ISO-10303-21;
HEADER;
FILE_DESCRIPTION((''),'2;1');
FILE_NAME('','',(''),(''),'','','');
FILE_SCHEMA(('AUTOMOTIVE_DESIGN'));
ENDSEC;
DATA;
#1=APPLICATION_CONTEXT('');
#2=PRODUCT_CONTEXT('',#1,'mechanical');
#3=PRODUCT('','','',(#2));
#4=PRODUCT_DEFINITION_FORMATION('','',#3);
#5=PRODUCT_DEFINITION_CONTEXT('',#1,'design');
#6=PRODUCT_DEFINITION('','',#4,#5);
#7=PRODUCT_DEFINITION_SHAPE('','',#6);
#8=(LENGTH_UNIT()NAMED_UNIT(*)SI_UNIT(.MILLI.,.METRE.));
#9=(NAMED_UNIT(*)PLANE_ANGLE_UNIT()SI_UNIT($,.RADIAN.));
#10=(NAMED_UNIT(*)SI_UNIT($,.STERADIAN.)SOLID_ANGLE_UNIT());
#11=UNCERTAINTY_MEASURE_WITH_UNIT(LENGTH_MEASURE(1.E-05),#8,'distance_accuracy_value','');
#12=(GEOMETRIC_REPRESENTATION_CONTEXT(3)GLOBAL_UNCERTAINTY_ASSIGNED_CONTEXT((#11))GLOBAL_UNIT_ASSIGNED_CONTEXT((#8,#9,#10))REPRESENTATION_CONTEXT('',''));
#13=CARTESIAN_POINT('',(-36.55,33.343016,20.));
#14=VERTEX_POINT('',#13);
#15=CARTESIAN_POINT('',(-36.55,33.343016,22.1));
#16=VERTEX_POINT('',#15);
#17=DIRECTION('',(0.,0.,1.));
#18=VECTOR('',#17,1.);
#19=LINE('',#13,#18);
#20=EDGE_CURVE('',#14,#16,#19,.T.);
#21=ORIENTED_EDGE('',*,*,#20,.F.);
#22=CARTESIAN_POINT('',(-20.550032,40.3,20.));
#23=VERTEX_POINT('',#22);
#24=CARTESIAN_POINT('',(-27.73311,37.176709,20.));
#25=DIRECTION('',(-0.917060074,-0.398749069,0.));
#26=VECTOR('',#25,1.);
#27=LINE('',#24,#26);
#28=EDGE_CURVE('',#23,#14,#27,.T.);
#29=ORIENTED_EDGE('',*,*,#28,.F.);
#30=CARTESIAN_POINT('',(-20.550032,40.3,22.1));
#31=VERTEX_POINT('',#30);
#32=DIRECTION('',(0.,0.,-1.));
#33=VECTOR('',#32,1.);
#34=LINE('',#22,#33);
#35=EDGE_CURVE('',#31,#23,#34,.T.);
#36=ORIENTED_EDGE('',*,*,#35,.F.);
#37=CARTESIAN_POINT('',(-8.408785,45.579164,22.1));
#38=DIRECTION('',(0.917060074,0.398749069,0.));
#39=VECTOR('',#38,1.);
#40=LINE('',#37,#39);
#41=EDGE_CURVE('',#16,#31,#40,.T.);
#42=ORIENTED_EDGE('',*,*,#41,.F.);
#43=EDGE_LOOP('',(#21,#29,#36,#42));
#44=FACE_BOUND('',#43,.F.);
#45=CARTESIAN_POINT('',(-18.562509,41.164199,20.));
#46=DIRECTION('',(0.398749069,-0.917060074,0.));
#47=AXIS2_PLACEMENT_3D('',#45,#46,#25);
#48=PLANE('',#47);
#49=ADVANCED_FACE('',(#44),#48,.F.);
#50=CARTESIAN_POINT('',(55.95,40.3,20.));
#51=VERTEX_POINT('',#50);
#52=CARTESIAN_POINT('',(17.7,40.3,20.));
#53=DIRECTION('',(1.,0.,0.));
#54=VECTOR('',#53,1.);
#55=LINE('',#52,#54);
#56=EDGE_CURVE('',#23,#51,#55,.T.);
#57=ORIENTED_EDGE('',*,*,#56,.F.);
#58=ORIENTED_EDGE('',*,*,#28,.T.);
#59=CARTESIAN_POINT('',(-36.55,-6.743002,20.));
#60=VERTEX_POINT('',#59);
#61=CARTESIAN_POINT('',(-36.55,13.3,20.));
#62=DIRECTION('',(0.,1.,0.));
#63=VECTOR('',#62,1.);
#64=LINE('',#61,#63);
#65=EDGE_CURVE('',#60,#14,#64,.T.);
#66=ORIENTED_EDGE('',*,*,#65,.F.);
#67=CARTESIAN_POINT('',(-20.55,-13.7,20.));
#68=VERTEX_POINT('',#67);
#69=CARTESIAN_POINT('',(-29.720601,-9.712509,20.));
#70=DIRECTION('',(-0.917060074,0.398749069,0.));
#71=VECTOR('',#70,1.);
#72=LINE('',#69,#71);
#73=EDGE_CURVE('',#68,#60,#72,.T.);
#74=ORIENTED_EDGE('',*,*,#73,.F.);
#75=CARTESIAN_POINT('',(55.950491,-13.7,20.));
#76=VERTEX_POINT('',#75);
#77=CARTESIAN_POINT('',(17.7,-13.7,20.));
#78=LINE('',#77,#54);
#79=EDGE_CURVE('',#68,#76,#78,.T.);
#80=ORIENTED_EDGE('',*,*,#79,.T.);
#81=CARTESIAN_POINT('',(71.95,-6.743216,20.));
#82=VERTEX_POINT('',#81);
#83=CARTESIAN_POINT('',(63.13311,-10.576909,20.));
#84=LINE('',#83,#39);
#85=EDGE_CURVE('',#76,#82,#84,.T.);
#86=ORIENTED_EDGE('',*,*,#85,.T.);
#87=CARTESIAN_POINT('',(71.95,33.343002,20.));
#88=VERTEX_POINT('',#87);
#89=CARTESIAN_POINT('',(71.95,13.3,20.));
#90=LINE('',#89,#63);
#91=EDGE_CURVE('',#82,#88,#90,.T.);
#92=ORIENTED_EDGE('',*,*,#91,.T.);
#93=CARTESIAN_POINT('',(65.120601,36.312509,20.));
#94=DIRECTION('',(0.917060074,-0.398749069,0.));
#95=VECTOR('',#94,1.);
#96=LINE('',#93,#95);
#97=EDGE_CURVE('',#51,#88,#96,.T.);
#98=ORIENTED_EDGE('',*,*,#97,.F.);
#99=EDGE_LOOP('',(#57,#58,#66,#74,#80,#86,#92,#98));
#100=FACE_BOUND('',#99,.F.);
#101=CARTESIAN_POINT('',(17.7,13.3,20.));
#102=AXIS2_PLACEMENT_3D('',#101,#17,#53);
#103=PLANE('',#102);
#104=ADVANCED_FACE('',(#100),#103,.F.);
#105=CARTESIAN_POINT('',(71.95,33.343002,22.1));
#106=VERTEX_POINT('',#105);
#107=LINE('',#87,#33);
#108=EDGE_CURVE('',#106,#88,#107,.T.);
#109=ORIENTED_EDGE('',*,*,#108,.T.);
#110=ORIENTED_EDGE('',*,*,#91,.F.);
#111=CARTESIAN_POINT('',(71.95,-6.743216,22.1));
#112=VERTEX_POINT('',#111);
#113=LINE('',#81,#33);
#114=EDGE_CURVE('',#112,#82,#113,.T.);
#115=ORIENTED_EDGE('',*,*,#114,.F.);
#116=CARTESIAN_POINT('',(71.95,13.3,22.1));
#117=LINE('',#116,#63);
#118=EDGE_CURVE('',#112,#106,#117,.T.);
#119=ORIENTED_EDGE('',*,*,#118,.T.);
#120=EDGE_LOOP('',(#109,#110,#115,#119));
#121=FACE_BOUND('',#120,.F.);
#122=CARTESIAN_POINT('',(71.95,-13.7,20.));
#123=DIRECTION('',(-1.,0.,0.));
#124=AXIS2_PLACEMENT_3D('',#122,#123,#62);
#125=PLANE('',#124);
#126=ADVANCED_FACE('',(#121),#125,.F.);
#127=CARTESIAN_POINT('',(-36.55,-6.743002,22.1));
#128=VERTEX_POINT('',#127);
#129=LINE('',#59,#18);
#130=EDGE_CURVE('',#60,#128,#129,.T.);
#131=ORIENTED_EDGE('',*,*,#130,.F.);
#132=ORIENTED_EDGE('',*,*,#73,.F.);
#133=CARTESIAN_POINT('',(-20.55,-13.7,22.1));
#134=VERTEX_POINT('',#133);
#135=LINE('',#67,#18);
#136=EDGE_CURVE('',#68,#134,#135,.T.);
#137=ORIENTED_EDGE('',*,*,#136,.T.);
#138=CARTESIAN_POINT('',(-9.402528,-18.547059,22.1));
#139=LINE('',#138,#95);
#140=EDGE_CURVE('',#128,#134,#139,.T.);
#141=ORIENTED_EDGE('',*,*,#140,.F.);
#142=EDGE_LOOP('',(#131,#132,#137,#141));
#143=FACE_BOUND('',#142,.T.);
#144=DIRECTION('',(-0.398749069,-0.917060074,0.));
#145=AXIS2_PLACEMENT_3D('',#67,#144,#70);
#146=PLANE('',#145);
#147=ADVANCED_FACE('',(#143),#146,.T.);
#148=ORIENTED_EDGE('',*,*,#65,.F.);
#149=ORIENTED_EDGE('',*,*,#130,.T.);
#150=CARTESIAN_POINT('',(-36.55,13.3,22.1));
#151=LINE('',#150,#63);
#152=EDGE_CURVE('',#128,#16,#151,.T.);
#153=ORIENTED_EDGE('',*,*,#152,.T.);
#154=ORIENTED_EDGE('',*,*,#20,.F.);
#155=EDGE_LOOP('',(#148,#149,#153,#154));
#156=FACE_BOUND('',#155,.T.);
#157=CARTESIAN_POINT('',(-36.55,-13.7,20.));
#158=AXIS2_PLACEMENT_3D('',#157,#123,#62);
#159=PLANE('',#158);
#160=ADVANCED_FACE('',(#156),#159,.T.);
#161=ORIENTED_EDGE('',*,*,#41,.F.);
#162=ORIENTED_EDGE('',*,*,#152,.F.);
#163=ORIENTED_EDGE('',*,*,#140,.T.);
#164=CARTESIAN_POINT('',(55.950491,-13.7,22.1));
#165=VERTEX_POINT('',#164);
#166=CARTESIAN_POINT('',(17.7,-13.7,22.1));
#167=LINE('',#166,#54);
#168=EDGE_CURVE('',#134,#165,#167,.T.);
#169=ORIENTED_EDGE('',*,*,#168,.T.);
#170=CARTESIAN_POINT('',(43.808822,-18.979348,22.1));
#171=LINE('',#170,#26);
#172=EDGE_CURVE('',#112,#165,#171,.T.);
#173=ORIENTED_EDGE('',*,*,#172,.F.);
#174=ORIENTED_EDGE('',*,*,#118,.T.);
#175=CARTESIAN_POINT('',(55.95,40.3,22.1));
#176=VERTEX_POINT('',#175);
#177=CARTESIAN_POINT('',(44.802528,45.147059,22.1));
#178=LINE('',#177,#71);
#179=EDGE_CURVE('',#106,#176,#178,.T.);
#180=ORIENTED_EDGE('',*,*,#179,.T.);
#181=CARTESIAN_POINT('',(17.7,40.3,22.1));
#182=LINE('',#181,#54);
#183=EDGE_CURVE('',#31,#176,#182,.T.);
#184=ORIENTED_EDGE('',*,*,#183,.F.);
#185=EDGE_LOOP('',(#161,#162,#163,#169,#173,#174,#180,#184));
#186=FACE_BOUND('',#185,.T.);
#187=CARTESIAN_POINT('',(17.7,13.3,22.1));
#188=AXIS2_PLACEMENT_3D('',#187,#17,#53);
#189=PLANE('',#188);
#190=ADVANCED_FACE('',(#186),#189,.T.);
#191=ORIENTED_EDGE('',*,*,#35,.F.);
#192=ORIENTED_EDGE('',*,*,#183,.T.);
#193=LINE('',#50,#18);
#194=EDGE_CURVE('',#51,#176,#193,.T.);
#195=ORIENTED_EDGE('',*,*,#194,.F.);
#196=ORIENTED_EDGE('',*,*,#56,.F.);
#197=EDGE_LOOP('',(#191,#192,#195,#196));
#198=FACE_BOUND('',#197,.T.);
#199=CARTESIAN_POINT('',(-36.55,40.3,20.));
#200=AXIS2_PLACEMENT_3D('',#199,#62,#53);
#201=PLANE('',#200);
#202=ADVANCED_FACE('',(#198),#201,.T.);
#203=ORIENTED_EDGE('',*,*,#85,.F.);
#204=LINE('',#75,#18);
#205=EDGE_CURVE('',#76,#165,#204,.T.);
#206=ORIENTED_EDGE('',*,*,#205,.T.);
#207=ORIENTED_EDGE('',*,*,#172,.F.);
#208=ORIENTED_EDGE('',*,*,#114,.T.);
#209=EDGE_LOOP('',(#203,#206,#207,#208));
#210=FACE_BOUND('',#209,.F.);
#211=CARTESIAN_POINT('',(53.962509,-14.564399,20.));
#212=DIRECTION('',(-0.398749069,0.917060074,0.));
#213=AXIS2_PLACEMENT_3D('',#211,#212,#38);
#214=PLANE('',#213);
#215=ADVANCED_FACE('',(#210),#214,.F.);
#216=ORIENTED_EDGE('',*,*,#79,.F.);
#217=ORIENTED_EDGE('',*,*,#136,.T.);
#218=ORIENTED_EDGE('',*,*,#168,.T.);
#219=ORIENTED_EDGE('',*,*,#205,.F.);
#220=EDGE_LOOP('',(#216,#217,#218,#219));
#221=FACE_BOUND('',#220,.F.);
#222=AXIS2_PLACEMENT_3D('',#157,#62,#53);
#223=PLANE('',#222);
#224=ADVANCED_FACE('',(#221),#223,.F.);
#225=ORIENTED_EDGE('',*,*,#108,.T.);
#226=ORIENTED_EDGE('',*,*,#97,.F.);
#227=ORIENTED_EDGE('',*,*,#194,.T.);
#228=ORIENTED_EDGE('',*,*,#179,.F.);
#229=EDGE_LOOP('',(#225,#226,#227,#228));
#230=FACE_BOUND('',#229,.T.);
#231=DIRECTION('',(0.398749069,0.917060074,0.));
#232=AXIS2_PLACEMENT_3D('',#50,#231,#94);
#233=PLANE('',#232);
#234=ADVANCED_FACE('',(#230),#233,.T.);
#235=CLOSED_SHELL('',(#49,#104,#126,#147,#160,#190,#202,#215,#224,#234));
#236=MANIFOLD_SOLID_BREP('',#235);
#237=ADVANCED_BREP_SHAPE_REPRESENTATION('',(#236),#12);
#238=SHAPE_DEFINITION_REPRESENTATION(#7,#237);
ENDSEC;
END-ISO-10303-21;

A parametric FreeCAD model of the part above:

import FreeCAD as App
import Part
import Sketcher
Q = App.Units.Quantity

doc = App.newDocument("Part")
params = doc.addObject("Spreadsheet::Sheet", "Params")
for row, (alias, value) in enumerate([
    ("sketch1_width", "20 mm"),
    ("sketch1_height", "10 mm"),
    ("pad1_length", "10 mm"),
    ("sketch2_width", "20 mm"),
    ("sketch2_height", "10 mm"),
    ("pad2_length", "10 mm"),
    ("sketch3_width", "20 mm"),
    ("sketch3_height", "10 mm"),
    ("pad3_length", "10 mm"),
    ("sketch4_width", "20 mm"),
    ("sketch4_height", "10 mm"),
    ("pad4_length", "10 mm"),
    ("sketch5_height", "54 mm"),
    ("sketch5_width", "108.5 mm"),
    ("pad5_length", "2.1 mm"),
], start=1):
    params.set(f"A{row}", alias)
    params.set(f"B{row}", "=" + value)
    params.setAlias(f"B{row}", alias)

body = doc.addObject("PartDesign::Body", "Body")

# Sketch on XY plane
sketch1 = body.newObject("Sketcher::SketchObject", "Sketch")
sketch1.AttachmentSupport = (doc.getObject("XY_Plane"), [""])
sketch1.MapMode = "FlatFace"
sketch1.addGeometry([
    Part.LineSegment(App.Vector(0, 10, 0), App.Vector(0, 0, 0)),
    Part.LineSegment(App.Vector(0, 0, 0), App.Vector(20, 0, 0)),
    Part.LineSegment(App.Vector(20, 0, 0), App.Vector(20, 10, 0)),
    Part.LineSegment(App.Vector(20, 10, 0), App.Vector(0, 10, 0)),
], False)
sketch1.addConstraint([
    Sketcher.Constraint("Coincident", 0, 2, 1, 1),
    Sketcher.Constraint("Coincident", 1, 2, 2, 1),
    Sketcher.Constraint("Coincident", 2, 2, 3, 1),
    Sketcher.Constraint("Coincident", 3, 2, 0, 1),
    Sketcher.Constraint("Vertical", 0),
    Sketcher.Constraint("Horizontal", 1),
    Sketcher.Constraint("Vertical", 2),
    Sketcher.Constraint("Horizontal", 3),
    Sketcher.Constraint("Coincident", 0, 2, -1, 1),
    Sketcher.Constraint("DistanceX", 1, 1, 1, 2, Q("20 mm")),
    Sketcher.Constraint("DistanceY", 0, 2, 0, 1, Q("10 mm")),
])
sketch1.setExpression("Constraints[9]", "Params.sketch1_width")
sketch1.setExpression("Constraints[10]", "Params.sketch1_height")
pad1 = body.newObject("PartDesign::Pad", "Pad")
pad1.Profile = sketch1
pad1.setExpression("Length", "Params.pad1_length")
body2 = doc.addObject("PartDesign::Body", "Body001")
doc.recompute()

body.Placement = App.Placement(App.Vector(16, 0, 0), App.Rotation(App.Vector(0, 0, 1), 156.5))
boolean = body2.newObject("PartDesign::Boolean", "Boolean")
boolean.Type = "Fuse"
boolean.addObjects([body])
body3 = doc.addObject("PartDesign::Body", "Body002")

# Sketch on XY plane
sketch2 = body3.newObject("Sketcher::SketchObject", "Sketch001")
sketch2.AttachmentSupport = (doc.getObject("XY_Plane002"), [""])
sketch2.MapMode = "FlatFace"
sketch2.addGeometry([
    Part.LineSegment(App.Vector(0, 10, 0), App.Vector(0, 0, 0)),
    Part.LineSegment(App.Vector(0, 0, 0), App.Vector(20, 0, 0)),
    Part.LineSegment(App.Vector(20, 0, 0), App.Vector(20, 10, 0)),
    Part.LineSegment(App.Vector(20, 10, 0), App.Vector(0, 10, 0)),
], False)
sketch2.addConstraint([
    Sketcher.Constraint("Coincident", 0, 2, 1, 1),
    Sketcher.Constraint("Coincident", 1, 2, 2, 1),
    Sketcher.Constraint("Coincident", 2, 2, 3, 1),
    Sketcher.Constraint("Coincident", 3, 2, 0, 1),
    Sketcher.Constraint("Vertical", 0),
    Sketcher.Constraint("Horizontal", 1),
    Sketcher.Constraint("Vertical", 2),
    Sketcher.Constraint("Horizontal", 3),
    Sketcher.Constraint("Coincident", 0, 2, -1, 1),
    Sketcher.Constraint("DistanceX", 1, 1, 1, 2, Q("20 mm")),
    Sketcher.Constraint("DistanceY", 0, 2, 0, 1, Q("10 mm")),
])
sketch2.setExpression("Constraints[9]", "Params.sketch2_width")
sketch2.setExpression("Constraints[10]", "Params.sketch2_height")
pad2 = body3.newObject("PartDesign::Pad", "Pad001")
pad2.Profile = sketch2
pad2.setExpression("Length", "Params.pad2_length")
body4 = doc.addObject("PartDesign::Body", "Body003")
doc.recompute()

body3.Placement = App.Placement(App.Vector(94.5, -10.035, 0), App.Rotation(App.Vector(0, 0, 1), 23.5))
boolean2 = body4.newObject("PartDesign::Boolean", "Boolean001")
boolean2.Type = "Fuse"
boolean2.addObjects([body3])
body5 = doc.addObject("PartDesign::Body", "Body004")

# Sketch on XY plane
sketch3 = body5.newObject("Sketcher::SketchObject", "Sketch002")
sketch3.AttachmentSupport = (doc.getObject("XY_Plane004"), [""])
sketch3.MapMode = "FlatFace"
sketch3.addGeometry([
    Part.LineSegment(App.Vector(0, 10, 0), App.Vector(0, 0, 0)),
    Part.LineSegment(App.Vector(0, 0, 0), App.Vector(20, 0, 0)),
    Part.LineSegment(App.Vector(20, 0, 0), App.Vector(20, 10, 0)),
    Part.LineSegment(App.Vector(20, 10, 0), App.Vector(0, 10, 0)),
], False)
sketch3.addConstraint([
    Sketcher.Constraint("Coincident", 0, 2, 1, 1),
    Sketcher.Constraint("Coincident", 1, 2, 2, 1),
    Sketcher.Constraint("Coincident", 2, 2, 3, 1),
    Sketcher.Constraint("Coincident", 3, 2, 0, 1),
    Sketcher.Constraint("Vertical", 0),
    Sketcher.Constraint("Horizontal", 1),
    Sketcher.Constraint("Vertical", 2),
    Sketcher.Constraint("Horizontal", 3),
    Sketcher.Constraint("Coincident", 0, 2, -1, 1),
    Sketcher.Constraint("DistanceX", 1, 1, 1, 2, Q("20 mm")),
    Sketcher.Constraint("DistanceY", 0, 2, 0, 1, Q("10 mm")),
])
sketch3.setExpression("Constraints[9]", "Params.sketch3_width")
sketch3.setExpression("Constraints[10]", "Params.sketch3_height")
pad3 = body5.newObject("PartDesign::Pad", "Pad002")
pad3.Profile = sketch3
pad3.setExpression("Length", "Params.pad3_length")
body6 = doc.addObject("PartDesign::Body", "Body005")
doc.recompute()

body5.Placement = App.Placement(App.Vector(92.5, 54, 0), App.Rotation(App.Vector(0, 0, 1), 336.5))
boolean3 = body6.newObject("PartDesign::Boolean", "Boolean002")
boolean3.Type = "Fuse"
boolean3.addObjects([body5])
body7 = doc.addObject("PartDesign::Body", "Body006")

# Sketch on XY plane
sketch4 = body7.newObject("Sketcher::SketchObject", "Sketch003")
sketch4.AttachmentSupport = (doc.getObject("XY_Plane006"), [""])
sketch4.MapMode = "FlatFace"
sketch4.addGeometry([
    Part.LineSegment(App.Vector(0, 10, 0), App.Vector(0, 0, 0)),
    Part.LineSegment(App.Vector(0, 0, 0), App.Vector(20, 0, 0)),
    Part.LineSegment(App.Vector(20, 0, 0), App.Vector(20, 10, 0)),
    Part.LineSegment(App.Vector(20, 10, 0), App.Vector(0, 10, 0)),
], False)
sketch4.addConstraint([
    Sketcher.Constraint("Coincident", 0, 2, 1, 1),
    Sketcher.Constraint("Coincident", 1, 2, 2, 1),
    Sketcher.Constraint("Coincident", 2, 2, 3, 1),
    Sketcher.Constraint("Coincident", 3, 2, 0, 1),
    Sketcher.Constraint("Vertical", 0),
    Sketcher.Constraint("Horizontal", 1),
    Sketcher.Constraint("Vertical", 2),
    Sketcher.Constraint("Horizontal", 3),
    Sketcher.Constraint("Coincident", 0, 2, -1, 1),
    Sketcher.Constraint("DistanceX", 1, 1, 1, 2, Q("20 mm")),
    Sketcher.Constraint("DistanceY", 0, 2, 0, 1, Q("10 mm")),
])
sketch4.setExpression("Constraints[9]", "Params.sketch4_width")
sketch4.setExpression("Constraints[10]", "Params.sketch4_height")
pad4 = body7.newObject("PartDesign::Pad", "Pad003")
pad4.Profile = sketch4
pad4.setExpression("Length", "Params.pad4_length")
body8 = doc.addObject("PartDesign::Body", "Body007")
doc.recompute()

body7.Placement = App.Placement(App.Vector(14, 64.0348, 0), App.Rotation(App.Vector(0, 0, 1), 203.5))
boolean4 = body8.newObject("PartDesign::Boolean", "Boolean003")
boolean4.Type = "Fuse"
boolean4.addObjects([body7])
body9 = doc.addObject("PartDesign::Body", "Body008")

# Sketch on XY plane
sketch5 = body9.newObject("Sketcher::SketchObject", "Sketch004")
sketch5.AttachmentSupport = (doc.getObject("XY_Plane008"), [""])
sketch5.MapMode = "FlatFace"
sketch5.addGeometry([
    Part.LineSegment(App.Vector(0, 54, 0), App.Vector(0, 0, 0)),
    Part.LineSegment(App.Vector(0, 0, 0), App.Vector(108.5, 0, 0)),
    Part.LineSegment(App.Vector(108.5, 0, 0), App.Vector(108.5, 54, 0)),
    Part.LineSegment(App.Vector(108.5, 54, 0), App.Vector(0, 54, 0)),
], False)
sketch5.addConstraint([
    Sketcher.Constraint("Coincident", 0, 2, 1, 1),
    Sketcher.Constraint("Coincident", 1, 2, 2, 1),
    Sketcher.Constraint("Coincident", 2, 2, 3, 1),
    Sketcher.Constraint("Coincident", 3, 2, 0, 1),
    Sketcher.Constraint("Vertical", 0),
    Sketcher.Constraint("Horizontal", 1),
    Sketcher.Constraint("Vertical", 2),
    Sketcher.Constraint("Horizontal", 3),
    Sketcher.Constraint("Coincident", 0, 2, -1, 1),
    Sketcher.Constraint("DistanceY", 0, 2, 0, 1, Q("54 mm")),
    Sketcher.Constraint("DistanceX", 1, 1, 1, 2, Q("108.5 mm")),
])
sketch5.setExpression("Constraints[9]", "Params.sketch5_height")
sketch5.setExpression("Constraints[10]", "Params.sketch5_width")
pad5 = body9.newObject("PartDesign::Pad", "Pad004")
pad5.Profile = sketch5
pad5.setExpression("Length", "Params.pad5_length")
doc.recompute()

boolean5 = body9.newObject("PartDesign::Boolean", "Boolean004")
boolean5.Type = "Cut"
boolean5.addObjects([body8])
doc.recompute()

boolean6 = body9.newObject("PartDesign::Boolean", "Boolean005")
boolean6.Type = "Cut"
boolean6.addObjects([body6])
doc.recompute()

boolean7 = body9.newObject("PartDesign::Boolean", "Boolean006")
boolean7.Type = "Cut"
boolean7.addObjects([body4])
doc.recompute()

boolean8 = body9.newObject("PartDesign::Boolean", "Boolean007")
boolean8.Type = "Cut"
boolean8.addObjects([body2])
body10 = doc.addObject("PartDesign::Body", "Body009")
doc.recompute()

body9.Placement = App.Placement(App.Vector(-36.55, -13.7, 20), App.Rotation(App.Vector(0, 0, 1), 0))
boolean9 = body10.newObject("PartDesign::Boolean", "Boolean008")
boolean9.Type = "Fuse"
boolean9.addObjects([body9])

doc.recompute()
